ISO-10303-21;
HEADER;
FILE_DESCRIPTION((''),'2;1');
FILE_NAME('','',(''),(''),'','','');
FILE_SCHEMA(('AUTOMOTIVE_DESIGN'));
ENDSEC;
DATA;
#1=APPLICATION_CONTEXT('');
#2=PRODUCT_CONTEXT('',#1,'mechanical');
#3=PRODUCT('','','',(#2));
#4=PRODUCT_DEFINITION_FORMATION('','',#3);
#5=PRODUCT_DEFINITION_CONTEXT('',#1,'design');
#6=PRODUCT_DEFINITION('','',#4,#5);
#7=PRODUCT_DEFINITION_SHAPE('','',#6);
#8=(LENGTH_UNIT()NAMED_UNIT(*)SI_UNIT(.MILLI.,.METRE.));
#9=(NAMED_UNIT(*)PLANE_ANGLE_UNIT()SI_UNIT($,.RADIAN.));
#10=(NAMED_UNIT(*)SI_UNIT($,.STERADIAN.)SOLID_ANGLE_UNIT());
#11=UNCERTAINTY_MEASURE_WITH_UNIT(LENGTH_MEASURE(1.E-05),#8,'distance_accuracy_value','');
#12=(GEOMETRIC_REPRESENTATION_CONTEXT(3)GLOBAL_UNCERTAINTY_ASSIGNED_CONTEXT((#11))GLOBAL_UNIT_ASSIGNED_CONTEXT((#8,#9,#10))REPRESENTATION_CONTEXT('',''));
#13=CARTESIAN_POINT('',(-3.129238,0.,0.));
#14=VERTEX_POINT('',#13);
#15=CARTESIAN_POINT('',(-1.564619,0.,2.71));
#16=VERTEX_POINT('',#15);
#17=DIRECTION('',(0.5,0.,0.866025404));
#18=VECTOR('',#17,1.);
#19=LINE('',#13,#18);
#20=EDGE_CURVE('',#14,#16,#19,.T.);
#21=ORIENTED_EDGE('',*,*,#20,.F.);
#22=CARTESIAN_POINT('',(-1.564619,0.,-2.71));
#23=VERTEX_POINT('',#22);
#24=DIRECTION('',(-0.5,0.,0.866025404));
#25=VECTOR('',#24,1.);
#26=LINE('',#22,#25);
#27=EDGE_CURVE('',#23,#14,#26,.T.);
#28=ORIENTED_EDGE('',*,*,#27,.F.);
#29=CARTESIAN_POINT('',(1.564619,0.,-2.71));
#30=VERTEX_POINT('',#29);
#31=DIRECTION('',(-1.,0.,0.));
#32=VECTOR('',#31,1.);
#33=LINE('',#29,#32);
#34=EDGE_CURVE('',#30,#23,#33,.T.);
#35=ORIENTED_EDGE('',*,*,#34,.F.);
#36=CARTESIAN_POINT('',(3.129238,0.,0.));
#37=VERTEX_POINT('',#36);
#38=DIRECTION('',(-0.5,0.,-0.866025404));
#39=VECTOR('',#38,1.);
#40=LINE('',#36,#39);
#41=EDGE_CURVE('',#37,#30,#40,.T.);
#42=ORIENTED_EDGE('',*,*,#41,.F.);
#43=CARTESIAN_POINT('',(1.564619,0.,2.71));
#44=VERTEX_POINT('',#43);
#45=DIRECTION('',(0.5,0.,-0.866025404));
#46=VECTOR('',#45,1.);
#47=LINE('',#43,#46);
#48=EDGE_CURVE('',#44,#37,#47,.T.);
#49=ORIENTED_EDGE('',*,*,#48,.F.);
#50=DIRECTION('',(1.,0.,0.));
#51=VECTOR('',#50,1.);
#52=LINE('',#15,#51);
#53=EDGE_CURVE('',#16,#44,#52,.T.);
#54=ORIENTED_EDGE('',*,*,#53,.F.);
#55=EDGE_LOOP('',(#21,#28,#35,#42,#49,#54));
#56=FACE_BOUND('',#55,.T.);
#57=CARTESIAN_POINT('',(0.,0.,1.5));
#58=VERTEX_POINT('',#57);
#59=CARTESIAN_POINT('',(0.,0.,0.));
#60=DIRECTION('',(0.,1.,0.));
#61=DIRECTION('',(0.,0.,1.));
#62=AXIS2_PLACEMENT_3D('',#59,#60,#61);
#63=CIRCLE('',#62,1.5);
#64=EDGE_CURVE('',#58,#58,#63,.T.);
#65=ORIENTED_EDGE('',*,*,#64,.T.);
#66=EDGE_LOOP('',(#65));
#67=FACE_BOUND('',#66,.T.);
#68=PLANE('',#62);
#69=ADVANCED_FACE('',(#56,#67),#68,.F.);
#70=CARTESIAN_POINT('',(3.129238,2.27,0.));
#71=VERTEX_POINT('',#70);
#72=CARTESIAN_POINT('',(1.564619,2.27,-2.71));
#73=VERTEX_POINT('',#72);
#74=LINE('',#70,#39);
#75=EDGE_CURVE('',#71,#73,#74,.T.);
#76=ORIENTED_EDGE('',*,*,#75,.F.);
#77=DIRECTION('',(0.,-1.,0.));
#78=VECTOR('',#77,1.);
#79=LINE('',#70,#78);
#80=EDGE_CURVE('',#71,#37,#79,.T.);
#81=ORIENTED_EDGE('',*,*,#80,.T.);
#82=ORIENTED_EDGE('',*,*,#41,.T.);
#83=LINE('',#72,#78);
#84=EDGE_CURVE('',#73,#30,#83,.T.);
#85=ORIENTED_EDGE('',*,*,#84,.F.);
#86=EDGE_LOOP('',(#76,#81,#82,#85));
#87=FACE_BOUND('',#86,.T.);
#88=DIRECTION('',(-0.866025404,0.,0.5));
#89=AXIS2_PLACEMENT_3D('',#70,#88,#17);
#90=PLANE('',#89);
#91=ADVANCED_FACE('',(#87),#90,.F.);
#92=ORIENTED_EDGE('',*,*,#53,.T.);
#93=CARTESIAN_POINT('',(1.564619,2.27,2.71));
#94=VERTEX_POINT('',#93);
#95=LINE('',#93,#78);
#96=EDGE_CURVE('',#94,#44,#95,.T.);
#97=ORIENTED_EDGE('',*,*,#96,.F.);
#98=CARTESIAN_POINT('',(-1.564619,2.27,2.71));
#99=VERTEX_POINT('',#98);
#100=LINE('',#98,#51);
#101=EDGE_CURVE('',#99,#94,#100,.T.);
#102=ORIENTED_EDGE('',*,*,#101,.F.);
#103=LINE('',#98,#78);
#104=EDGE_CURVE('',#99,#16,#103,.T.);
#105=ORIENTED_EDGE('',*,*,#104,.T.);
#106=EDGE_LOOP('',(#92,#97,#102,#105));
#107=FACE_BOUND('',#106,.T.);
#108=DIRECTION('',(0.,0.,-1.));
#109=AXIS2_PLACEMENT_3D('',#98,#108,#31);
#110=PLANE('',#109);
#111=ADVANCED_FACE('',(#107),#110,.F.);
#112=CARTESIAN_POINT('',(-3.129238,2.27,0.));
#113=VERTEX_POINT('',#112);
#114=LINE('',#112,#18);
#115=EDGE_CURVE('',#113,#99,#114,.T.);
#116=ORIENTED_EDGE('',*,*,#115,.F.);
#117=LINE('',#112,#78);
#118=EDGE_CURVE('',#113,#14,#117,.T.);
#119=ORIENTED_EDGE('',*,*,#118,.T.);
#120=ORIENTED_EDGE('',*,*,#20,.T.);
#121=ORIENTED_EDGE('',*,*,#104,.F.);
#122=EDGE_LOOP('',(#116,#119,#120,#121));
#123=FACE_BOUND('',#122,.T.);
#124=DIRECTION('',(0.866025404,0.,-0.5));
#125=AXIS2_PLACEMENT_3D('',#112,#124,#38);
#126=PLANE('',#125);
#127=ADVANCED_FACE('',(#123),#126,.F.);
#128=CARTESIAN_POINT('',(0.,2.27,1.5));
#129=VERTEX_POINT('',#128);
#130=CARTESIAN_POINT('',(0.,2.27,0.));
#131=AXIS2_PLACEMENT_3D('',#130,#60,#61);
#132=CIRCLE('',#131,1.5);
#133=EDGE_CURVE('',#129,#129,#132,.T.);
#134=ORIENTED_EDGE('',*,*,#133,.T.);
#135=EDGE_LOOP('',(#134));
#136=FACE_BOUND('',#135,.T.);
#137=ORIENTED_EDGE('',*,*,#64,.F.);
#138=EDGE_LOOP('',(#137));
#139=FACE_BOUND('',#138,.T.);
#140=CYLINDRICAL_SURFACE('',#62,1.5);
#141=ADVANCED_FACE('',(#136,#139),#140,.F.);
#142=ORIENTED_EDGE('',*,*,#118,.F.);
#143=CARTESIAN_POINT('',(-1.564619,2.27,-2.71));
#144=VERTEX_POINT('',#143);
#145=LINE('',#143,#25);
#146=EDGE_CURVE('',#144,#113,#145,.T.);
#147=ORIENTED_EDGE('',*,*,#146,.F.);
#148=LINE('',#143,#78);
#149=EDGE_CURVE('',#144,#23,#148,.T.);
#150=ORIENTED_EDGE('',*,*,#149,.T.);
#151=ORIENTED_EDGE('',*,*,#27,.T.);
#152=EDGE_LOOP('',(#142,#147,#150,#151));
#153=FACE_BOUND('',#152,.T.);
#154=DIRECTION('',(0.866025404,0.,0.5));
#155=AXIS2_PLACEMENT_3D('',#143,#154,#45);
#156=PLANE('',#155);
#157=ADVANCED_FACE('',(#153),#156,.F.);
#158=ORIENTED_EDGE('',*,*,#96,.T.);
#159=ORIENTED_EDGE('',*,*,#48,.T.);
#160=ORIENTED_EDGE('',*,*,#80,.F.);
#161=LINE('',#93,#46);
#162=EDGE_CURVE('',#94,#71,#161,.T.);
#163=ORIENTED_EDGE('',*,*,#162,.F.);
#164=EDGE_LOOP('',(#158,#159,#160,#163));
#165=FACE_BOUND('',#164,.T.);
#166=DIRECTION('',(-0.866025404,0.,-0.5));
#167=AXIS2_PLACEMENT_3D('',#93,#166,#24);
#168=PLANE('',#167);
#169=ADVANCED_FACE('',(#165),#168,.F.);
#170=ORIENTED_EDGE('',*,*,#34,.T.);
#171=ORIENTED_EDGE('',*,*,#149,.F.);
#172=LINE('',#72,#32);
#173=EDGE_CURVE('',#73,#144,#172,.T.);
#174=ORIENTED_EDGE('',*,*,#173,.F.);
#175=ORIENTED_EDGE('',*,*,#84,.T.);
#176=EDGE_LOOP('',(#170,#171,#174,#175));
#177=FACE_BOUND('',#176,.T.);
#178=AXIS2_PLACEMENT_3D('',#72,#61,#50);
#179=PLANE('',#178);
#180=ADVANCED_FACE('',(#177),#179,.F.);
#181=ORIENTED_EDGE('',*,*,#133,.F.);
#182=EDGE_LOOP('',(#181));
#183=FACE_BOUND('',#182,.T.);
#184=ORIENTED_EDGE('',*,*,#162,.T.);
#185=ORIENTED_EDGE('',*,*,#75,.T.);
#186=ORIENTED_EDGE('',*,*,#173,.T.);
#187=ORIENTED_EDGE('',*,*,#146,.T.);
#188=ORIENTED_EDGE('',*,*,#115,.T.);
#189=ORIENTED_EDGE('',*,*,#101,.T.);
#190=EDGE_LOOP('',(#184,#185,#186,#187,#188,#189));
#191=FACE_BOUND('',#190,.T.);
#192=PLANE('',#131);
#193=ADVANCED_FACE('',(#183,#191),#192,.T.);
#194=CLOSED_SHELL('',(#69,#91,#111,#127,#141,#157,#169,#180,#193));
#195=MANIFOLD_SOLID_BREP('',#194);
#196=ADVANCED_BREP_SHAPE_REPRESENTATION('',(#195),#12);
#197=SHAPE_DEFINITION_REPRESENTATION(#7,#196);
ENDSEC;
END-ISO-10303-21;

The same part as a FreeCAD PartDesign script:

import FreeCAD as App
import Part
import Sketcher
from FreeCAD import Vector
Q = App.Units.Quantity


def add_polygon(sketch, points):
    """Adds a closed chain of lines whose ends are joined by coincident constraints."""
    first, n = sketch.GeometryCount, len(points)
    for a, b in zip(points, points[1:] + points[:1]):
        sketch.addGeometry(Part.LineSegment(App.Vector(*a, 0), App.Vector(*b, 0)), False)
    for i in range(n):
        sketch.addConstraint(Sketcher.Constraint("Coincident", first + i, 2, first + (i + 1) % n, 1))

doc = App.newDocument("Part")
body = doc.addObject("PartDesign::Body", "Body")

# Sketch on XZ plane
sketch1 = body.newObject("Sketcher::SketchObject", "Sketch")
sketch1.AttachmentSupport = (doc.getObject("XZ_Plane"), [""])
sketch1.MapMode = "FlatFace"
add_polygon(sketch1, [(3.1, 0), (1.6, -2.7), (-1.6, -2.7), (-3.1, 0), (-1.6, 2.7), (1.6, 2.7)])  # lines 0-5
sketch1.addConstraint(Sketcher.Constraint("Horizontal", 1))
sketch1.addConstraint(Sketcher.Constraint("Horizontal", 4))
sketch1.addConstraint(Sketcher.Constraint("Symmetric", 0, 2, 3, 2, -1, 1))
sketch1.addConstraint(Sketcher.Constraint("Symmetric", 2, 2, 5, 2, -1, 1))
sketch1.addConstraint(Sketcher.Constraint("PointOnObject", 2, 2, -1))
sketch1.addConstraint(Sketcher.Constraint("Parallel", 2, 5))
sketch1.addConstraint(Sketcher.Constraint("Vertical", 1, 2, 3, 2))
sketch1.addConstraint(Sketcher.Constraint("Angle", 0, Q("-120 deg")))
sketch1.addConstraint(Sketcher.Constraint("DistanceY", 0, 2, -1, 1, 2.71))
sketch1.addConstraint(Sketcher.Constraint("DistanceX", 1, 2, 1, 1, 3.129238))
pad1 = body.newObject("PartDesign::Pad", "Pad")
pad1.Profile = sketch1
pad1.Length = 2.27
pad1.Reversed = True

# Sketch on XZ plane
sketch2 = body.newObject("Sketcher::SketchObject", "Sketch001")
sketch2.AttachmentSupport = (doc.getObject("XZ_Plane"), [""])
sketch2.MapMode = "FlatFace"
sketch2.AttachmentOffset = App.Placement(Vector(0, 0, -2.27), App.Rotation())
sketch2.addGeometry(Part.Circle(Vector(0, 0, 0), Vector(0, 0, 1), 1.5), False)
sketch2.addConstraint(Sketcher.Constraint("Coincident", 0, 3, -1, 1))
sketch2.addConstraint(Sketcher.Constraint("Diameter", 0, 3.0))
pocket1 = body.newObject("PartDesign::Pocket", "Pocket")
pocket1.Profile = sketch2
pocket1.Length = 2.27
pocket1.Reversed = True

doc.recompute()
